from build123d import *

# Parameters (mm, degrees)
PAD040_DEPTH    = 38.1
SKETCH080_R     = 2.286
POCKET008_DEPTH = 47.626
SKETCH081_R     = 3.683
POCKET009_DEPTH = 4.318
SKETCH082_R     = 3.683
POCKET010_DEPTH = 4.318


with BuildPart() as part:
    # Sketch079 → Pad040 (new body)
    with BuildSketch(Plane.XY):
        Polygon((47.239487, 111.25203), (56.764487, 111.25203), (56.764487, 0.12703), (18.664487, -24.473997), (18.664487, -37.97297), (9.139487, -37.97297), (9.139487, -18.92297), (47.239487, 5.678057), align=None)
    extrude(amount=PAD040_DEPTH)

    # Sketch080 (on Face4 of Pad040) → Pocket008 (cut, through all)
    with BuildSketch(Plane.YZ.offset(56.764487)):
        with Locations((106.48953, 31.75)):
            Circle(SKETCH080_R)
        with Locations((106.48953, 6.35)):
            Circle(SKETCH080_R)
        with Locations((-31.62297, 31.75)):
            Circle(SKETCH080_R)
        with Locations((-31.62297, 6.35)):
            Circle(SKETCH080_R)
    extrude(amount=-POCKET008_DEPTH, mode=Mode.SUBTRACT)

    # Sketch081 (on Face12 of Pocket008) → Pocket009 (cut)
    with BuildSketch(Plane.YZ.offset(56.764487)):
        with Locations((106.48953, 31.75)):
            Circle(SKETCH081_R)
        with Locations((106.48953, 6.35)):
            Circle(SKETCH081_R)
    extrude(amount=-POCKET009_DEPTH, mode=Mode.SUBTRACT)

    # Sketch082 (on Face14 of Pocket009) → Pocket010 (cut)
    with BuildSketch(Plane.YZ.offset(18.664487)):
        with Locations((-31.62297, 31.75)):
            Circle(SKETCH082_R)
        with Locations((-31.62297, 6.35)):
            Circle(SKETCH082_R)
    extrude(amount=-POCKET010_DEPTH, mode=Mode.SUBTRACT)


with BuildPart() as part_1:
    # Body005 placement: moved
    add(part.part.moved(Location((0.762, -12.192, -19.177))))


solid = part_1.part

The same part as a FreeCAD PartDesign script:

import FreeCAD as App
import Part
import Sketcher
from FreeCAD import Vector
Q = App.Units.Quantity


def add_polygon(sketch, points):
    """Adds a closed chain of lines whose ends are joined by coincident constraints."""
    first, n = sketch.GeometryCount, len(points)
    for a, b in zip(points, points[1:] + points[:1]):
        sketch.addGeometry(Part.LineSegment(App.Vector(*a, 0), App.Vector(*b, 0)), False)
    for i in range(n):
        sketch.addConstraint(Sketcher.Constraint("Coincident", first + i, 2, first + (i + 1) % n, 1))

doc = App.newDocument("Part")
params = doc.addObject("Spreadsheet::Sheet", "Params")
for row, (alias, value) in enumerate([
    ("sketch1_height", "0.75 in"),
    ("sketch1_width", "0.375 in"),
    ("sketch1_height2", "4.375 in"),
    ("pad1_length", "1.5 in"),
    ("sketch2_diameter", "0.18 in"),
    ("sketch3_diameter", "0.29 in"),
    ("pocket2_length", "0.17 in"),
    ("sketch4_diameter", "0.29 in"),
    ("pocket3_length", "0.17 in"),
], start=1):
    params.set(f"A{row}", alias)
    params.set(f"B{row}", "=" + value)
    params.setAlias(f"B{row}", alias)

body = doc.addObject("PartDesign::Body", "Body")

sketch1 = body.newObject("Sketcher::SketchObject", "Sketch")
sketch1.AttachmentSupport = (doc.getObject("XY_Plane"), [""])
sketch1.MapMode = "FlatFace"
add_polygon(sketch1, [(56.764487, 111.25203), (47.239487, 111.25203), (47.239487, 5.678057), (9.139487, -18.92297), (9.139487, -37.97297), (18.664487, -37.97297), (18.664487, -24.473997), (56.764487, 0.12703)])
sketch1.addConstraint([
    Sketcher.Constraint("Horizontal", 0),
    Sketcher.Constraint("Vertical", 1),
    Sketcher.Constraint("Vertical", 3),
    Sketcher.Constraint("Horizontal", 4),
    Sketcher.Constraint("Vertical", 5),
    Sketcher.Constraint("Vertical", 7),
    Sketcher.Constraint("Parallel", 2, 6),
    Sketcher.Constraint("Equal", 0, 4),
    Sketcher.Constraint("DistanceY", 3, 2, 3, 1, Q("0.75 in")),
    Sketcher.Constraint("DistanceX", 2, 2, 1, 2, Q("1.5 in")),
    Sketcher.Constraint("DistanceY", 4, 2, 6, 2, Q("1.5 in")),
    Sketcher.Constraint("DistanceX", 0, 2, 0, 1, Q("0.375 in")),
    Sketcher.Constraint("DistanceY", 7, 1, 7, 2, Q("4.375 in")),
    Sketcher.Constraint("DistanceY", 1, 2, 1, 1, 105.573973),
    Sketcher.Constraint("DistanceY", -1, 1, 0, 2, 111.25203),
    Sketcher.Constraint("DistanceX", -1, 1, 0, 2, 47.239487),
])
sketch1.setExpression("Constraints[16]", "Params.sketch1_height")
sketch1.setExpression("Constraints[19]", "Params.sketch1_width")
sketch1.setExpression("Constraints[20]", "Params.sketch1_height2")
pad1 = body.newObject("PartDesign::Pad", "Pad")
pad1.Profile = sketch1
pad1.setExpression("Length", "Params.pad1_length")

sketch2 = body.newObject("Sketcher::SketchObject", "Sketch001")
sketch2.AttachmentSupport = (doc.getObject("YZ_Plane"), [""])
sketch2.MapMode = "FlatFace"
sketch2.AttachmentOffset = App.Placement(Vector(0, 0, 56.764487), App.Rotation())
sketch2.addGeometry([
    Part.Circle(Vector(106.48953, 31.75, 0), Vector(0, 0, 1), 2.286),
    Part.Circle(Vector(106.48953, 6.35, 0), Vector(0, 0, 1), 2.286),
    Part.Circle(Vector(-31.62297, 31.75, 0), Vector(0, 0, 1), 2.286),
    Part.Circle(Vector(-31.62297, 6.35, 0), Vector(0, 0, 1), 2.286),
], False)
sketch2.addConstraint([
    Sketcher.Constraint("Equal", 0, 1),
    Sketcher.Constraint("Equal", 1, 2),
    Sketcher.Constraint("Equal", 2, 3),
    Sketcher.Constraint("Horizontal", 0, 3, 2, 3),
    Sketcher.Constraint("Horizontal", 1, 3, 3, 3),
    Sketcher.Constraint("Vertical", 0, 3, 1, 3),
    Sketcher.Constraint("Vertical", 2, 3, 3, 3),
    Sketcher.Constraint("Diameter", 0, Q("0.18 in")),
    Sketcher.Constraint("DistanceY", 1, 3, 0, 3, Q("1 in")),
    Sketcher.Constraint("DistanceY", -1, 1, 0, 3, Q("1.25 in")),
    Sketcher.Constraint("DistanceX", 2, 3, 0, 3, Q("5.4375 in")),
    Sketcher.Constraint("DistanceX", -1, 1, 0, 3, 106.48953),
])
sketch2.setExpression("Constraints[7]", "Params.sketch2_diameter")
pocket1 = body.newObject("PartDesign::Pocket", "Pocket")
pocket1.Profile = sketch2
pocket1.Type = "ThroughAll"

sketch3 = body.newObject("Sketcher::SketchObject", "Sketch002")
sketch3.AttachmentSupport = (doc.getObject("YZ_Plane"), [""])
sketch3.MapMode = "FlatFace"
sketch3.AttachmentOffset = App.Placement(Vector(0, 0, 56.764487), App.Rotation())
sketch3.addGeometry([
    Part.Circle(Vector(106.48953, 31.75, 0), Vector(0, 0, 1), 3.683),
    Part.Circle(Vector(106.48953, 6.35, 0), Vector(0, 0, 1), 3.683),
], False)
sketch3.addConstraint([
    Sketcher.Constraint("Equal", 0, 1),
    Sketcher.Constraint("Vertical", 0, 3, 1, 3),
    Sketcher.Constraint("Diameter", 0, Q("0.29 in")),
    Sketcher.Constraint("DistanceY", 1, 3, 0, 3, Q("1 in")),
    Sketcher.Constraint("DistanceY", -1, 1, 0, 3, Q("1.25 in")),
    Sketcher.Constraint("DistanceX", -1, 1, 0, 3, 106.48953),
])
sketch3.setExpression("Constraints[2]", "Params.sketch3_diameter")
pocket2 = body.newObject("PartDesign::Pocket", "Pocket001")
pocket2.Profile = sketch3
pocket2.setExpression("Length", "Params.pocket2_length")

sketch4 = body.newObject("Sketcher::SketchObject", "Sketch003")
sketch4.AttachmentSupport = (doc.getObject("YZ_Plane"), [""])
sketch4.MapMode = "FlatFace"
sketch4.AttachmentOffset = App.Placement(Vector(0, 0, 18.664487), App.Rotation())
sketch4.addGeometry([
    Part.Circle(Vector(-31.62297, 31.75, 0), Vector(0, 0, 1), 3.683),
    Part.Circle(Vector(-31.62297, 6.35, 0), Vector(0, 0, 1), 3.683),
], False)
sketch4.addConstraint([
    Sketcher.Constraint("Equal", 0, 1),
    Sketcher.Constraint("Vertical", 0, 3, 1, 3),
    Sketcher.Constraint("Diameter", 0, Q("0.29 in")),
    Sketcher.Constraint("DistanceY", 1, 3, 0, 3, Q("1 in")),
    Sketcher.Constraint("DistanceY", -1, 1, 0, 3, Q("1.25 in")),
    Sketcher.Constraint("DistanceX", 0, 3, -1, 1, 31.62297),
])
sketch4.setExpression("Constraints[2]", "Params.sketch4_diameter")
pocket3 = body.newObject("PartDesign::Pocket", "Pocket002")
pocket3.Profile = sketch4
pocket3.setExpression("Length", "Params.pocket3_length")
body2 = doc.addObject("PartDesign::Body", "Body001")
doc.recompute()

body.Placement = App.Placement(Vector(0.762, -12.192, -19.177), App.Rotation(Vector(0, 0, 1), 0))
boolean = body2.newObject("PartDesign::Boolean", "Boolean")
boolean.Type = "Fuse"
boolean.addObjects([body])

doc.recompute()
